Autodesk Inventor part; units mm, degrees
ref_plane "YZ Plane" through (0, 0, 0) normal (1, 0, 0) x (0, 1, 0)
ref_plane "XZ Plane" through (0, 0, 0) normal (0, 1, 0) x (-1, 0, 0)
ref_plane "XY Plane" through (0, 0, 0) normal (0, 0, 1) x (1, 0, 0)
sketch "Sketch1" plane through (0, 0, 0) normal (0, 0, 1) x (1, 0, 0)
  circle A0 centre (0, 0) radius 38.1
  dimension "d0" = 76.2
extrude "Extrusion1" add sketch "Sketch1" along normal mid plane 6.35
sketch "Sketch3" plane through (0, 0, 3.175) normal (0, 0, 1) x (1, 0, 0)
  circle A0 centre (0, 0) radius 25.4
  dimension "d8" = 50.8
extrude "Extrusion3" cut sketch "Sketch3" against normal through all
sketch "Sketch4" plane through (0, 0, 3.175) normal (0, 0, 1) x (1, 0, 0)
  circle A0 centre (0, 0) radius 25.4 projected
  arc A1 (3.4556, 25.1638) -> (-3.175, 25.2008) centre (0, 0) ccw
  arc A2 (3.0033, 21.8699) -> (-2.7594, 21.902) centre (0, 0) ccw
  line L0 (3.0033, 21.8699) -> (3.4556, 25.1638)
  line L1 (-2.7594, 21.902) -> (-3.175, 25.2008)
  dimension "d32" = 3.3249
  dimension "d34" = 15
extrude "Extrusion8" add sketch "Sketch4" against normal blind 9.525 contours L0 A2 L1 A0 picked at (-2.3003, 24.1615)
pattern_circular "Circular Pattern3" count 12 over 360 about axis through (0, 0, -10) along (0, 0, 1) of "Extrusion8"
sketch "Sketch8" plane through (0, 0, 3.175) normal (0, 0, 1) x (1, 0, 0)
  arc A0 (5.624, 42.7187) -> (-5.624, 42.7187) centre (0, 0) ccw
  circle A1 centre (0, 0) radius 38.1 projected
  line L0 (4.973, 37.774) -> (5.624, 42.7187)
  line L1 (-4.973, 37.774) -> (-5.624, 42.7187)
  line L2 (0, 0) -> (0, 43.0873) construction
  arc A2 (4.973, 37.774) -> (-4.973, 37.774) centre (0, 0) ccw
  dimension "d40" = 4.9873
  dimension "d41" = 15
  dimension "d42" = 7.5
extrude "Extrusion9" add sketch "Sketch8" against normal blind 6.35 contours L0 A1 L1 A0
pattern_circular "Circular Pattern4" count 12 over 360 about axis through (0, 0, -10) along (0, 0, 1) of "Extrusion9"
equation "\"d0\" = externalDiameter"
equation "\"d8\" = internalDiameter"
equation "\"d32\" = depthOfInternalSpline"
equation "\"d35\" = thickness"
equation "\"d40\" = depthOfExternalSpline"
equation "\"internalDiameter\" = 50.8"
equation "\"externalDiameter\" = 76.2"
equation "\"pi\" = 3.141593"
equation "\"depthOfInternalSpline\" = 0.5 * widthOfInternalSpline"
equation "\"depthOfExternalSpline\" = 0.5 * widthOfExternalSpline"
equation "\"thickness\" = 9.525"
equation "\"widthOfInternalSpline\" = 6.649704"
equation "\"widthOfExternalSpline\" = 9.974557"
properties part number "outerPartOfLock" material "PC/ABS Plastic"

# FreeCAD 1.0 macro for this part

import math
import FreeCAD as App
import Part
import Sketcher
from FreeCAD import Vector
Q = App.Units.Quantity

doc = App.newDocument("Part")
body = doc.addObject("PartDesign::Body", "Body")

# Sketch on XY plane
sketch1 = body.newObject("Sketcher::SketchObject", "Sketch")
sketch1.AttachmentSupport = (doc.getObject("XY_Plane"), [""])
sketch1.MapMode = "FlatFace"
sketch1.addGeometry(Part.Circle(Vector(0, 0, 0), Vector(0, 0, 1), 38.1), False)
sketch1.addConstraint([
    Sketcher.Constraint("Coincident", 0, 3, -1, 1),
    Sketcher.Constraint("Diameter", 0, Q("3 in")),
])
pad1 = body.newObject("PartDesign::Pad", "Pad")
pad1.Profile = sketch1
pad1.Length = Q("0.25 in")
pad1.Midplane = True

# Sketch on XY plane
sketch2 = body.newObject("Sketcher::SketchObject", "Sketch001")
sketch2.AttachmentSupport = (doc.getObject("XY_Plane"), [""])
sketch2.MapMode = "FlatFace"
sketch2.AttachmentOffset = App.Placement(Vector(0, 0, 0.125 * 25.4), App.Rotation())
sketch2.addGeometry(Part.Circle(Vector(0, 0, 0), Vector(0, 0, 1), 25.4), False)
sketch2.addConstraint([
    Sketcher.Constraint("Coincident", 0, 3, -1, 1),
    Sketcher.Constraint("Diameter", 0, Q("2 in")),
])
pocket1 = body.newObject("PartDesign::Pocket", "Pocket")
pocket1.Profile = sketch2
pocket1.Type = "ThroughAll"

# Sketch on XY plane
sketch3 = body.newObject("Sketcher::SketchObject", "Sketch002")
sketch3.AttachmentSupport = (doc.getObject("XY_Plane"), [""])
sketch3.MapMode = "FlatFace"
sketch3.AttachmentOffset = App.Placement(Vector(0, 0, 0.125 * 25.4), App.Rotation())
sketch3.addGeometry([
    Part.LineSegment(Vector(3.0033, 21.8699, 0), Vector(3.4556, 25.1638, 0)),
    Part.ArcOfCircle(Part.Circle(Vector(0, 0, 0), Vector(0, 0, 1), 25.4), math.radians(82.180807), math.radians(97.18075)),
    Part.LineSegment(Vector(-3.175, 25.2008, 0), Vector(-2.7594, 21.902, 0)),
    Part.ArcOfCircle(Part.Circle(Vector(0, 0, 0), Vector(0, 0, 1), 22.075152), math.radians(82.180723), math.radians(97.180775)),
], False)
sketch3.addConstraint([
    Sketcher.Constraint("Coincident", 0, 2, 1, 1),
    Sketcher.Constraint("Coincident", 1, 2, 2, 1),
    Sketcher.Constraint("Coincident", 2, 2, 3, 2),
    Sketcher.Constraint("Coincident", 3, 1, 0, 1),
    Sketcher.Constraint("Coincident", 1, 3, -1, 1),
    Sketcher.Constraint("Coincident", 3, 3, -1, 1),
    Sketcher.Constraint("Radius", 1, Q("1 in")),
    Sketcher.Constraint("Distance", 0, Q("0.1309 in")),
    Sketcher.Constraint("Angle", 2, Q("-82.8194 deg")),
    Sketcher.Constraint("DistanceX", 1, 2, -1, 1, Q("0.125 in")),
    Sketcher.Constraint("DistanceY", -1, 1, 0, 2, Q("0.9907 in")),
    Sketcher.Constraint("DistanceX", 3, 1, 0, 2, Q("0.0178 in")),
])
pad2 = body.newObject("PartDesign::Pad", "Pad001")
pad2.Profile = sketch3
pad2.Length = Q("0.375 in")
pad2.Reversed = True
doc.recompute()

polarpattern = body.newObject("PartDesign::PolarPattern", "PolarPattern")
polarpattern.Originals = [pad2]
polarpattern.Axis = (doc.getObject("Z_Axis"), [""])
polarpattern.Angle = 360
polarpattern.Occurrences = 12
body.Tip = polarpattern

# Sketch on XY plane
sketch4 = body.newObject("Sketcher::SketchObject", "Sketch003")
sketch4.AttachmentSupport = (doc.getObject("XY_Plane"), [""])
sketch4.MapMode = "FlatFace"
sketch4.AttachmentOffset = App.Placement(Vector(0, 0, 0.125 * 25.4), App.Rotation())
sketch4.addGeometry([
    Part.LineSegment(Vector(4.973, 37.774, 0), Vector(5.624, 42.7187, 0)),
    Part.ArcOfCircle(Part.Circle(Vector(0, 0, 0), Vector(0, 0, 1), 43.087315), math.radians(82.500031), math.radians(97.499969)),
    Part.LineSegment(Vector(-5.624, 42.7187, 0), Vector(-4.973, 37.774, 0)),
    Part.ArcOfCircle(Part.Circle(Vector(0, 0, 0), Vector(0, 0, 1), 38.1), math.radians(82.500062), math.radians(97.499938)),
], False)
sketch4.addConstraint([
    Sketcher.Constraint("Coincident", 0, 2, 1, 1),
    Sketcher.Constraint("Coincident", 1, 2, 2, 1),
    Sketcher.Constraint("Coincident", 2, 2, 3, 2),
    Sketcher.Constraint("Coincident", 3, 1, 0, 1),
    Sketcher.Constraint("Coincident", 1, 3, -1, 1),
    Sketcher.Constraint("Coincident", 3, 3, -1, 1),
    Sketcher.Constraint("Horizontal", 0, 2, 1, 2),
    Sketcher.Constraint("Horizontal", 2, 2, 3, 1),
    Sketcher.Constraint("Radius", 3, Q("1.5 in")),
    Sketcher.Constraint("Angle", 0, Q("82.4998 deg")),
    Sketcher.Constraint("Distance", 0, 4.9874),
    Sketcher.Constraint("DistanceX", 2, 2, 0, 2, Q("0.4172 in")),
])
pad3 = body.newObject("PartDesign::Pad", "Pad002")
pad3.Profile = sketch4
pad3.Length = Q("0.25 in")
pad3.Reversed = True
doc.recompute()

polarpattern2 = body.newObject("PartDesign::PolarPattern", "PolarPattern001")
polarpattern2.Originals = [pad3]
polarpattern2.Axis = (doc.getObject("Z_Axis"), [""])
polarpattern2.Angle = 360
polarpattern2.Occurrences = 12
body.Tip = polarpattern2

doc.recompute()
